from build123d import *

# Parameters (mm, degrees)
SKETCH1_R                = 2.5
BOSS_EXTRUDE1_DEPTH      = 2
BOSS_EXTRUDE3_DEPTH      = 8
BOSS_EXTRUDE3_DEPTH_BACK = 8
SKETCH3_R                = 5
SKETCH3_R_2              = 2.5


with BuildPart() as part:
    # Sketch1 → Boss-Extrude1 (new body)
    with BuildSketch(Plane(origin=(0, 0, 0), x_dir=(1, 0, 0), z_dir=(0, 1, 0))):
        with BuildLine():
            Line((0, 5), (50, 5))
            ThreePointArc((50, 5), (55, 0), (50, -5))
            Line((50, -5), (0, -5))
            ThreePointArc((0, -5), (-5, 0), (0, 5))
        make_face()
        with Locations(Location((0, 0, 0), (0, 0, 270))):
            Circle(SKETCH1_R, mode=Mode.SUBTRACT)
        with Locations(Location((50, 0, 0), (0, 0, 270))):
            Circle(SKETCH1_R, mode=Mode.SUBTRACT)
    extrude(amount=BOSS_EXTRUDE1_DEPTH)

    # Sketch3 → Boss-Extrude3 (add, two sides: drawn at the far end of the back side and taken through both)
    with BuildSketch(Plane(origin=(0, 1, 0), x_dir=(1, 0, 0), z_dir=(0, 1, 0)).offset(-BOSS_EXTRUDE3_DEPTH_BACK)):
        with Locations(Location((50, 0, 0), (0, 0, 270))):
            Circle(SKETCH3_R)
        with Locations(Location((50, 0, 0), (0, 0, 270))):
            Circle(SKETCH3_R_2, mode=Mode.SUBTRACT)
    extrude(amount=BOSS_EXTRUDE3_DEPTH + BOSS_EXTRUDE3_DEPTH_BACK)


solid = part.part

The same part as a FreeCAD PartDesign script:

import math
import FreeCAD as App
import Part
import Sketcher
Q = App.Units.Quantity

doc = App.newDocument("Part")
body = doc.addObject("PartDesign::Body", "Body")

sketch1 = body.newObject("Sketcher::SketchObject", "Sketch")
sketch1.AttachmentSupport = (doc.getObject("XZ_Plane"), [""])
sketch1.MapMode = "FlatFace"
sketch1.addGeometry([
    Part.LineSegment(App.Vector(50, -5, 0), App.Vector(0, -5, 0)),
    Part.ArcOfCircle(Part.Circle(App.Vector(0, 0, 0), App.Vector(0, 0, 1), 5), math.radians(90), math.radians(270)),
    Part.LineSegment(App.Vector(0, 5, 0), App.Vector(50, 5, 0)),
    Part.ArcOfCircle(Part.Circle(App.Vector(50, 0, 0), App.Vector(0, 0, 1), 5), math.radians(-90), math.radians(90)),
    Part.Circle(App.Vector(50, 0, 0), App.Vector(0, 0, 1), 2.5),
    Part.Circle(App.Vector(0, 0, 0), App.Vector(0, 0, 1), 2.5),
], False)
sketch1.addConstraint([
    Sketcher.Constraint("Tangent", 0, 2, 1, 2),
    Sketcher.Constraint("Tangent", 1, 1, 2, 1),
    Sketcher.Constraint("Tangent", 2, 2, 3, 2),
    Sketcher.Constraint("Tangent", 3, 1, 0, 1),
    Sketcher.Constraint("Horizontal", 0),
    Sketcher.Constraint("Horizontal", 2),
    Sketcher.Constraint("Coincident", 1, 3, -1, 1),
    Sketcher.Constraint("Coincident", 5, 3, -1, 1),
    Sketcher.Constraint("Coincident", 4, 3, 3, 3),
    Sketcher.Constraint("Equal", 4, 5),
    Sketcher.Constraint("Diameter", 4, Q("5 mm")),
    Sketcher.Constraint("Radius", 1, Q("5 mm")),
    Sketcher.Constraint("DistanceX", 0, 2, 0, 1, Q("50 mm")),
])
pad1 = body.newObject("PartDesign::Pad", "Pad")
pad1.Profile = sketch1
pad1.Length = 2
pad1.Reversed = True

sketch2 = body.newObject("Sketcher::SketchObject", "Sketch001")
sketch2.AttachmentSupport = (doc.getObject("XZ_Plane"), [""])
sketch2.MapMode = "FlatFace"
sketch2.AttachmentOffset = App.Placement(App.Vector(0, 0, -1), App.Rotation())
sketch2.addGeometry([
    Part.Circle(App.Vector(50, 0, 0), App.Vector(0, 0, 1), 5),
    Part.Circle(App.Vector(50, 0, 0), App.Vector(0, 0, 1), 2.5),
], False)
sketch2.addConstraint([
    Sketcher.Constraint("Coincident", 1, 3, 0, 3),
    Sketcher.Constraint("PointOnObject", 0, 3, -1),
    Sketcher.Constraint("Diameter", 0, Q("10 mm")),
    Sketcher.Constraint("Diameter", 1, Q("5 mm")),
    Sketcher.Constraint("DistanceX", -1, 1, 0, 3, Q("50 mm")),
])
pad2 = body.newObject("PartDesign::Pad", "Pad001")
pad2.Profile = sketch2
pad2.Type = "TwoLengths"
pad2.Length = 8
pad2.Length2 = 8
pad2.Reversed = True

doc.recompute()
